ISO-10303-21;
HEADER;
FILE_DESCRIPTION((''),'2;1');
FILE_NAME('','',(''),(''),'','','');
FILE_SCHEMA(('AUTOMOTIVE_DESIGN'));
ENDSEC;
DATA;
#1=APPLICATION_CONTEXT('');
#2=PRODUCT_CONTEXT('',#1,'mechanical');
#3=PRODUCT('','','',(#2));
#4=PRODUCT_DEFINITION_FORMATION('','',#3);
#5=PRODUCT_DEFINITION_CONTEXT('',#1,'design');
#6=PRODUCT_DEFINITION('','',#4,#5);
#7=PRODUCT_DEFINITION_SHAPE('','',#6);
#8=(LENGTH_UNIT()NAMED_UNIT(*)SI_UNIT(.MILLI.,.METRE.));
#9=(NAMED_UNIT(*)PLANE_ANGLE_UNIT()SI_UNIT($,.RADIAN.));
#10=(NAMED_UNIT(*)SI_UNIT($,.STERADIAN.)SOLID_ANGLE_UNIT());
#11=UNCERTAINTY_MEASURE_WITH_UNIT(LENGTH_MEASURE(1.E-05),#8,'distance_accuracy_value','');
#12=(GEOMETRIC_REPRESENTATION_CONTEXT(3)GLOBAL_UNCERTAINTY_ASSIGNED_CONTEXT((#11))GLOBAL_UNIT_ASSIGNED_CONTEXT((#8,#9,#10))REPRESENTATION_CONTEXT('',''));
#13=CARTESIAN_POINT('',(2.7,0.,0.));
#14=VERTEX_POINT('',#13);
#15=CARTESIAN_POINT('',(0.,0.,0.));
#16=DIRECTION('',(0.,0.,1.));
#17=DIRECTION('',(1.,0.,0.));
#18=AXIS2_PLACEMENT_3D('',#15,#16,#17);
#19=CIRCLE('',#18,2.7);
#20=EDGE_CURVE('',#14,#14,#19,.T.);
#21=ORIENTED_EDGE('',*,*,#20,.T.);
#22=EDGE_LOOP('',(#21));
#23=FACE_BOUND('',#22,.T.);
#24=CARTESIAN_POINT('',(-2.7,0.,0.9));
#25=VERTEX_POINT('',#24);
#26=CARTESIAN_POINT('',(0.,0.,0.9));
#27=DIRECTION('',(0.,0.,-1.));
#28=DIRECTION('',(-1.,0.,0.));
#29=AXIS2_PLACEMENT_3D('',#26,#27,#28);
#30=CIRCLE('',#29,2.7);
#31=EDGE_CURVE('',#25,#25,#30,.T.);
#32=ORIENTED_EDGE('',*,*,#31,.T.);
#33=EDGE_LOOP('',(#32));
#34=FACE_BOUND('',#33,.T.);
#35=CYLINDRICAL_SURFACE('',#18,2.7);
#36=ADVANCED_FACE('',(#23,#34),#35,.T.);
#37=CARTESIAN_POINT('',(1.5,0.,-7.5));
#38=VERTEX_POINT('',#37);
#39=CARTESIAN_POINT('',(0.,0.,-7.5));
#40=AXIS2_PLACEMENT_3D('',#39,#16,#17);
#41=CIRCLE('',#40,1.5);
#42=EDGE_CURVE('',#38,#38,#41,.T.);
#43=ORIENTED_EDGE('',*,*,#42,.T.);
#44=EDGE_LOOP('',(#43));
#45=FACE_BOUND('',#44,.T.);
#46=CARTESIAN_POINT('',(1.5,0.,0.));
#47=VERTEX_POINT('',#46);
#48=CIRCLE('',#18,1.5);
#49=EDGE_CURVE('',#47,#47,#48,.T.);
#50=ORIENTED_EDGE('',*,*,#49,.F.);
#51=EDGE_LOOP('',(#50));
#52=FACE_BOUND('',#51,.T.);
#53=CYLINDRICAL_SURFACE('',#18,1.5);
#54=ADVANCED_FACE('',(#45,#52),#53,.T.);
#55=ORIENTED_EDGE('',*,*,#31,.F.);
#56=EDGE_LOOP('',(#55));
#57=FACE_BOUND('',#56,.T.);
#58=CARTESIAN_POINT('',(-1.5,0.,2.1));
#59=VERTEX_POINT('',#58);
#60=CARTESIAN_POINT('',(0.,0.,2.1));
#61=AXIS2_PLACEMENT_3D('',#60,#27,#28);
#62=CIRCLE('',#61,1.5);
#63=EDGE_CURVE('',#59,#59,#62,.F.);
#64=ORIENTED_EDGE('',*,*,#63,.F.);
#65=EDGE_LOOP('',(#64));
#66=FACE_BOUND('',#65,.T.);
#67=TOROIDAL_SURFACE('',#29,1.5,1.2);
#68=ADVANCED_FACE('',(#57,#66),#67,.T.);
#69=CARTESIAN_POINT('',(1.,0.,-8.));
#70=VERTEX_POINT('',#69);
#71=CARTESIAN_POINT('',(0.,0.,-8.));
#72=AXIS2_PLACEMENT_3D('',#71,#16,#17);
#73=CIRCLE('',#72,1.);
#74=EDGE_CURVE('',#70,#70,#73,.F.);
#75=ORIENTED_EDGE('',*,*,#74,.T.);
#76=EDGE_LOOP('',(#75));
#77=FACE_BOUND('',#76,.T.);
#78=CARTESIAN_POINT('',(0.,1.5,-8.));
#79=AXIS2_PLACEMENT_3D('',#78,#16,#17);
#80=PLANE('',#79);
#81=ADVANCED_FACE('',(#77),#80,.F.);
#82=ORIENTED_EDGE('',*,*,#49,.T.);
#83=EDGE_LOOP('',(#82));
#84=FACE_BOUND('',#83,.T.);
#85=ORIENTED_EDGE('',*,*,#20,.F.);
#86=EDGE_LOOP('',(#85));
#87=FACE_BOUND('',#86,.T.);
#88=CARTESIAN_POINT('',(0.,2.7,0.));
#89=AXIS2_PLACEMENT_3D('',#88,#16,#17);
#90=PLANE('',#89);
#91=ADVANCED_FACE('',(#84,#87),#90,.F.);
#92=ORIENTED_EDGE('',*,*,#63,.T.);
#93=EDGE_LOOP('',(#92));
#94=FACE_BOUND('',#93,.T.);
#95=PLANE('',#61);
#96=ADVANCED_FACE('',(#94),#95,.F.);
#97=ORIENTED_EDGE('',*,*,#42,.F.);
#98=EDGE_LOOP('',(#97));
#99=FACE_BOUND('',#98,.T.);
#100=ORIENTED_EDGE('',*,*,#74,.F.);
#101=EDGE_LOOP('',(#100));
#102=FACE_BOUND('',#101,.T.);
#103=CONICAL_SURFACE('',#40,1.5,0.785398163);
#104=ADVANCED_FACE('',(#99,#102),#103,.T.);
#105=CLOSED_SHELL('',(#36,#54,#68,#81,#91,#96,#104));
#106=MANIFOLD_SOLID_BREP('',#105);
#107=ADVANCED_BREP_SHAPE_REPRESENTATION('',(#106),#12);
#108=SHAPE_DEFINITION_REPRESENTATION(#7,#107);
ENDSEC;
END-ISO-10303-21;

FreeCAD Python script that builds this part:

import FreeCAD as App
import Part
import Sketcher
from FreeCAD import Vector
Q = App.Units.Quantity


def edges_at(feature, points):
    """Names of the edges that pass closest to the given points."""
    edges = feature.Shape.Edges
    near = lambda p: min(range(len(edges)), key=lambda i: edges[i].distToShape(Part.Vertex(*p))[0])
    return sorted({f"Edge{near(p) + 1}" for p in points})


def add_polygon(sketch, points):
    """Adds a closed chain of lines whose ends are joined by coincident constraints."""
    first, n = sketch.GeometryCount, len(points)
    for a, b in zip(points, points[1:] + points[:1]):
        sketch.addGeometry(Part.LineSegment(App.Vector(*a, 0), App.Vector(*b, 0)), False)
    for i in range(n):
        sketch.addConstraint(Sketcher.Constraint("Coincident", first + i, 2, first + (i + 1) % n, 1))

doc = App.newDocument("Part")
body = doc.addObject("PartDesign::Body", "Body")

# Sketch on YZ plane
sketch1 = doc.addObject("Sketcher::SketchObject", "Sketch")
body.addObject(sketch1)
sketch1.AttachmentSupport = (doc.YZ_Plane, [""])
sketch1.MapMode = "FlatFace"
add_polygon(sketch1, [(1.5, 0), (2.7, 0), (2.7, 2.1), (0, 2.1), (0, -8), (1.5, -8)])  # lines 0-5
sketch1.addConstraint([
    Sketcher.Constraint("Horizontal", 0),
    Sketcher.Constraint("Vertical", 1),
    Sketcher.Constraint("Horizontal", 2),
    Sketcher.Constraint("Vertical", 3),
    Sketcher.Constraint("Horizontal", 4),
    Sketcher.Constraint("Vertical", 5),
    Sketcher.Constraint("PointOnObject", 0, 2, -1),
    Sketcher.Constraint("PointOnObject", 2, 2, -2),
    Sketcher.Constraint("DistanceY", 5, 1, 5, 2, Q("8 mm")),
    Sketcher.Constraint("DistanceX", 0, 1, 0, 2, Q("1.2 mm")),
    Sketcher.Constraint("DistanceX", 2, 2, 2, 1, Q("2.7 mm")),
    Sketcher.Constraint("DistanceY", 1, 1, 1, 2, Q("2.1 mm")),
])
revolution = doc.addObject("PartDesign::Revolution", "Revolution")
body.addObject(revolution)
revolution.Profile = sketch1
revolution.ReferenceAxis = (sketch1, ["V_Axis"])
revolution.Angle = 360
doc.recompute()

fillet = doc.addObject("PartDesign::Fillet", "Fillet")
body.addObject(fillet)
fillet.Base = (revolution, edges_at(revolution, [(0, -2.7, 2.1)]))
fillet.Radius = 1.2
doc.recompute()

chamfer = doc.addObject("PartDesign::Chamfer", "Chamfer")
body.addObject(chamfer)
chamfer.Base = (fillet, edges_at(fillet, [(0, -1.5, -8)]))
chamfer.Size = 0.5

doc.recompute()
